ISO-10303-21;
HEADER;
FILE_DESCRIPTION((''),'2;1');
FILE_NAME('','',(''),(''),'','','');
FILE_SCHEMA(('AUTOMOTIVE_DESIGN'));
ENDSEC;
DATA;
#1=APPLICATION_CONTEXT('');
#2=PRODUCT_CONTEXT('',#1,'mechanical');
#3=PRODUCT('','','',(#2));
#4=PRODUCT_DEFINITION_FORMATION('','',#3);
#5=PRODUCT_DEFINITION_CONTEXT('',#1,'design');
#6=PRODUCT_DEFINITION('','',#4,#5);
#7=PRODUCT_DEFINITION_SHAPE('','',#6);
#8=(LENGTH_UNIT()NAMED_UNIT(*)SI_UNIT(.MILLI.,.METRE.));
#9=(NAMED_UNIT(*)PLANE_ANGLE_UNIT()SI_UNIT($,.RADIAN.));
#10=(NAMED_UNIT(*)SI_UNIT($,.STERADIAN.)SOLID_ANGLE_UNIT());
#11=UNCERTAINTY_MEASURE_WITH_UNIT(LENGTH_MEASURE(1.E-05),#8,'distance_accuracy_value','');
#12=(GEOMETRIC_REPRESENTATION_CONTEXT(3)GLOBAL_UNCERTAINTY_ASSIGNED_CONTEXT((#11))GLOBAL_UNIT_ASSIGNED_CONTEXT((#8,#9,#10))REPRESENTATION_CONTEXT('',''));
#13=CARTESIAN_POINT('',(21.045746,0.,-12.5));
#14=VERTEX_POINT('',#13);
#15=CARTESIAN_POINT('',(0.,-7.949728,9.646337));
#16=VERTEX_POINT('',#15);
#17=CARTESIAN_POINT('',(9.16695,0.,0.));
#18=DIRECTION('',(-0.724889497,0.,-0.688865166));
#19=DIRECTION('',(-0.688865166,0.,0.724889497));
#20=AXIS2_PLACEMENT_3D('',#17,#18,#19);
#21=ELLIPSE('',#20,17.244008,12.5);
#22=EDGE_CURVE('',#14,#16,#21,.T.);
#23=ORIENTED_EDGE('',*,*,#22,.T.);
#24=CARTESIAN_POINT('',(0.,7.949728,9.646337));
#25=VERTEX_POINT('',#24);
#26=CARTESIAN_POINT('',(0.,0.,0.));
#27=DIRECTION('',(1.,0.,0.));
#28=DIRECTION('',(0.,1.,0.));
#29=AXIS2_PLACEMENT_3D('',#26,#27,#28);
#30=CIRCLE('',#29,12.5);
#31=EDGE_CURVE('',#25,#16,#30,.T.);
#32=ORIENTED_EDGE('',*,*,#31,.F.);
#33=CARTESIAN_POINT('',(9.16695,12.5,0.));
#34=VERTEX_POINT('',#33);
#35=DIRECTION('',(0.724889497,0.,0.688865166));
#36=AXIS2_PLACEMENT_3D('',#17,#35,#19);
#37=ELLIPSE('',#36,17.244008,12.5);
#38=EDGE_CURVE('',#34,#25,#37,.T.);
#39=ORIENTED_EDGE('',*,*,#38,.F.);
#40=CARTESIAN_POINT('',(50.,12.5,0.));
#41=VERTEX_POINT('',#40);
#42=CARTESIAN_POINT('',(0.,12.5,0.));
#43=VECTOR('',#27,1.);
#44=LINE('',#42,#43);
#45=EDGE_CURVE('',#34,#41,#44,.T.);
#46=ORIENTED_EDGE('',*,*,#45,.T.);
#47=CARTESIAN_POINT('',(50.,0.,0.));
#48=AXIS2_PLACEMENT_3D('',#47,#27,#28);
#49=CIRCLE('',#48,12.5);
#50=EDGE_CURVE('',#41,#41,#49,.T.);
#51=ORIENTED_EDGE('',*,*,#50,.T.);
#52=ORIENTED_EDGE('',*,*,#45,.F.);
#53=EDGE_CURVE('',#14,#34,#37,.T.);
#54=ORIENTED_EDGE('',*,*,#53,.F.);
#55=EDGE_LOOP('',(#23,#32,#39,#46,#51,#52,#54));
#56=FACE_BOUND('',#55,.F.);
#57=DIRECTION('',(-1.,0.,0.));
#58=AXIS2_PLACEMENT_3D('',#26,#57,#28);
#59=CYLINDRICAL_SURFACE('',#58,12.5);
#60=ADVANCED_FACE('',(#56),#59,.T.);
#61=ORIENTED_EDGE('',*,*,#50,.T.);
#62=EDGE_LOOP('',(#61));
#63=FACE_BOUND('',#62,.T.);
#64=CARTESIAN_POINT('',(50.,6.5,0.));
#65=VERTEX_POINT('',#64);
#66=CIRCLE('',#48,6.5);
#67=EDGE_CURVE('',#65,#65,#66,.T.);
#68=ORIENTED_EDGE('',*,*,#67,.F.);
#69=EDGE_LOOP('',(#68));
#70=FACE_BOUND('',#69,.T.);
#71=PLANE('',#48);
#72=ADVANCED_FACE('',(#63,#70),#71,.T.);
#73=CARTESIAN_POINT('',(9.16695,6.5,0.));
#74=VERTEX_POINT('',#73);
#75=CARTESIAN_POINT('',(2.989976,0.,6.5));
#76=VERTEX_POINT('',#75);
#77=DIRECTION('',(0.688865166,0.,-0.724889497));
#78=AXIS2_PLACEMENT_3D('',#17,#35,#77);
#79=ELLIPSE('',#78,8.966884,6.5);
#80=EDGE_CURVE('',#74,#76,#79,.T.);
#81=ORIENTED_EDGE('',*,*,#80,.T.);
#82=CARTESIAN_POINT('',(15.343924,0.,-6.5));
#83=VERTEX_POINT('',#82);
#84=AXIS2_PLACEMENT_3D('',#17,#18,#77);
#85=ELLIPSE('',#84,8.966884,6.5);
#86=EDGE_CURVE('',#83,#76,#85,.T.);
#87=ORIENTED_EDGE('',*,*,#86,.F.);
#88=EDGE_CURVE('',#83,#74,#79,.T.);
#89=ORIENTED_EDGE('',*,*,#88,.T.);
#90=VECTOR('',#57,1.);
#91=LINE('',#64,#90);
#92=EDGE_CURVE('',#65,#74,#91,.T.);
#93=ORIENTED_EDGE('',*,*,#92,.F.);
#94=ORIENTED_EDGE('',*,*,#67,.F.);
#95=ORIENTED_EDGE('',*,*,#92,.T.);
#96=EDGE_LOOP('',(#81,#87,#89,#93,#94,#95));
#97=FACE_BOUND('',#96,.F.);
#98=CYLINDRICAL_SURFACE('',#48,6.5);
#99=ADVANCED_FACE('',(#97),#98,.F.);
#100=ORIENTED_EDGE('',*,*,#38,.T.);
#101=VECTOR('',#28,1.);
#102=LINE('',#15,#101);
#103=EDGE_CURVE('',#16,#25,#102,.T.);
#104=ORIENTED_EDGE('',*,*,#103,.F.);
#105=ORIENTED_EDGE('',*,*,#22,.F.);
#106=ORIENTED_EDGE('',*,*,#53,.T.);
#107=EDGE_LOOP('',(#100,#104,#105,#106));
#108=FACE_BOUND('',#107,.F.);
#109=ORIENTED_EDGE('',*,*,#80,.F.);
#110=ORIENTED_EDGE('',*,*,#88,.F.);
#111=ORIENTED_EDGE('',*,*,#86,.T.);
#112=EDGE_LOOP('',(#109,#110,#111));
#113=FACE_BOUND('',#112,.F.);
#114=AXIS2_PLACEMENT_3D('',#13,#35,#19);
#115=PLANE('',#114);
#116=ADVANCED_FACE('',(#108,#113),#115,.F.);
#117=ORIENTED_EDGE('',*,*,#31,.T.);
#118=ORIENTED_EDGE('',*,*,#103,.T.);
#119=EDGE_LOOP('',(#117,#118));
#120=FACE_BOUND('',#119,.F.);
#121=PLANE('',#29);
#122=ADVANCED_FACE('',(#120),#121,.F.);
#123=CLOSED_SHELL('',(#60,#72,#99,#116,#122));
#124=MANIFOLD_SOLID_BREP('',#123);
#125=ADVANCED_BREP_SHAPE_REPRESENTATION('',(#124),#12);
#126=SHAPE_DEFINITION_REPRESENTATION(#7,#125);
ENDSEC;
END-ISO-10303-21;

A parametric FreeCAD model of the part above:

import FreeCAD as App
import Part
import Sketcher
Q = App.Units.Quantity

doc = App.newDocument("Part")
body = doc.addObject("PartDesign::Body", "Body")

# Sketch on YZ plane
sketch1 = doc.addObject("Sketcher::SketchObject", "Sketch")
body.addObject(sketch1)
sketch1.AttachmentSupport = (doc.YZ_Plane, [""])
sketch1.MapMode = "FlatFace"
sketch1.addGeometry(Part.Circle(App.Vector(0, 0, 0), App.Vector(0, 0, 1), 12), False)
sketch1.addConstraint([
    Sketcher.Constraint("Coincident", 0, 3, -1, 1),
    Sketcher.Constraint("Diameter", 0, Q("25 mm")),
])
pad1 = doc.addObject("PartDesign::Pad", "Pad")
body.addObject(pad1)
pad1.Profile = sketch1
pad1.Length = 50

# Sketch on YZ plane
sketch2 = doc.addObject("Sketcher::SketchObject", "Sketch001")
body.addObject(sketch2)
sketch2.AttachmentSupport = (doc.YZ_Plane, [""])
sketch2.MapMode = "FlatFace"
sketch2.AttachmentOffset = App.Placement(App.Vector(0, 0, 50), App.Rotation())
sketch2.addGeometry(Part.Circle(App.Vector(0, 0, 0), App.Vector(0, 0, 1), 6), False)
sketch2.addConstraint([
    Sketcher.Constraint("Coincident", 0, 3, -1, 1),
    Sketcher.Constraint("Diameter", 0, Q("13 mm")),
])
pocket1 = doc.addObject("PartDesign::Pocket", "Pocket")
body.addObject(pocket1)
pocket1.Profile = sketch2
pocket1.Type = "ThroughAll"

# Sketch on XZ plane
sketch3 = doc.addObject("Sketcher::SketchObject", "Sketch002")
body.addObject(sketch3)
sketch3.AttachmentSupport = (doc.XZ_Plane, [""])
sketch3.MapMode = "FlatFace"
sketch3.addGeometry([
    Part.LineSegment(App.Vector(0, -12, 0), App.Vector(21, -12, 0)),
    Part.LineSegment(App.Vector(21, -12, 0), App.Vector(0, 10, 0)),
    Part.LineSegment(App.Vector(0, 10, 0), App.Vector(0, -12, 0)),
], False)
sketch3.addConstraint([
    Sketcher.Constraint("Coincident", 0, 2, 1, 1),
    Sketcher.Constraint("Coincident", 1, 2, 2, 1),
    Sketcher.Constraint("Coincident", 2, 2, 0, 1),
    Sketcher.Constraint("Horizontal", 0),
    Sketcher.Constraint("Vertical", 2),
    Sketcher.Constraint("PointOnObject", 1, 2, -2),
    Sketcher.Constraint("DistanceY", 0, 2, -1, 1, Q("12.5 mm")),
    Sketcher.Constraint("Distance", 1, Q("30.551329 mm")),
    Sketcher.Constraint("DistanceX", 0, 1, 0, 2, Q("21.045746 mm")),
])
pocket2 = doc.addObject("PartDesign::Pocket", "Pocket001")
body.addObject(pocket2)
pocket2.Profile = sketch3
pocket2.Type = "ThroughAll"
pocket2.Midplane = True

doc.recompute()
